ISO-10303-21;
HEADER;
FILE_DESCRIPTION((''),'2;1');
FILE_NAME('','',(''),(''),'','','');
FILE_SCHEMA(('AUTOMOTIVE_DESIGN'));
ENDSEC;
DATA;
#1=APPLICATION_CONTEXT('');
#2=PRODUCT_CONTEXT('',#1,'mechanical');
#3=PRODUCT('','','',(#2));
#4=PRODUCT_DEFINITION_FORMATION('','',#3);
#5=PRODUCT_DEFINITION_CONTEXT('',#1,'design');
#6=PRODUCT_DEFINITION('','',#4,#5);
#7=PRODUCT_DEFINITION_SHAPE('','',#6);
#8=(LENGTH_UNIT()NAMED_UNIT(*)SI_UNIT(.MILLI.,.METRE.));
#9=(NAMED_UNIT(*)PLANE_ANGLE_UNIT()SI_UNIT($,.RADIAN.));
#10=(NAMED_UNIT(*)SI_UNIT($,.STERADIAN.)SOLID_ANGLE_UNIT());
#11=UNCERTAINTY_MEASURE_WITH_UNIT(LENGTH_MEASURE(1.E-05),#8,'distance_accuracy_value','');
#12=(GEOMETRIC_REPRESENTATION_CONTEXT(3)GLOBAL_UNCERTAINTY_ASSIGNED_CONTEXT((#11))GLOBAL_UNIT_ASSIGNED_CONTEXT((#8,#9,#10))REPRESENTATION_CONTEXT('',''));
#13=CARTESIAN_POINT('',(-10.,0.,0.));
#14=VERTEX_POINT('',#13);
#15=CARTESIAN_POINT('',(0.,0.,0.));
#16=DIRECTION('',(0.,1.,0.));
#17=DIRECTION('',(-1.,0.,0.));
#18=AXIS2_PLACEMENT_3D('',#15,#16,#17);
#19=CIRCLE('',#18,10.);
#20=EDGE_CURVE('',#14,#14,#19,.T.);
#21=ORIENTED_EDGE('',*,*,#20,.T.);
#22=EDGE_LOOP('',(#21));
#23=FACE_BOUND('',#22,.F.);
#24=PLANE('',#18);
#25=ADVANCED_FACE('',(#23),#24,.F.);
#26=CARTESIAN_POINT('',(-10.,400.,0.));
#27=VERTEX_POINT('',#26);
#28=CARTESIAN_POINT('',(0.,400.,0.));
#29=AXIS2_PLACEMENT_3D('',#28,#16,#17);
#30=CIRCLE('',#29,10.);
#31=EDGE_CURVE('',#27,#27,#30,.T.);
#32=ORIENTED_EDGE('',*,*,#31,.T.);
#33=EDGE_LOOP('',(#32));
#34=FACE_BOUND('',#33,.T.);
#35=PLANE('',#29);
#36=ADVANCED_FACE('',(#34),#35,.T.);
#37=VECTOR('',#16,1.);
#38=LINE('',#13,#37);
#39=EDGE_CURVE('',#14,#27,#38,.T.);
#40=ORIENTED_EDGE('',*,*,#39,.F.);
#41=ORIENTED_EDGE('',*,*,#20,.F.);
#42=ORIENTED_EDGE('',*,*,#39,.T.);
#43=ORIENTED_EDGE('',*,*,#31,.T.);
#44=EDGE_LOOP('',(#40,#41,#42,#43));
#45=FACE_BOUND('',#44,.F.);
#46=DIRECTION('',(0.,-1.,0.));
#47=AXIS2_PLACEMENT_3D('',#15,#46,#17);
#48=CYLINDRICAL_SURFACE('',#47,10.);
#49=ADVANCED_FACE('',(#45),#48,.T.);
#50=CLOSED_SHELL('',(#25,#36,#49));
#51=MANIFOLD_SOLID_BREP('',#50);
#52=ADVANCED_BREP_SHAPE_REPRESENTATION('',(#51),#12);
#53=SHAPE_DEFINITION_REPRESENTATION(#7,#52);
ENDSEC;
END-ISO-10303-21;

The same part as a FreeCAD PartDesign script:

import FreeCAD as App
import Part
import Sketcher

V = App.Vector

doc = App.newDocument("Part")
body = doc.addObject("PartDesign::Body", "Body")

# Sketch on XZ plane
sketch1 = body.newObject("Sketcher::SketchObject", "Sketch")
sketch1.AttachmentSupport = (doc.getObject("XZ_Plane"), [""])
sketch1.MapMode = "FlatFace"
sketch1.addGeometry(Part.Circle(V(0, 0, 0), V(0, 0, 1), 10), False)
sketch1.addConstraint([
    Sketcher.Constraint("Coincident", 0, 3, -1, 1),
    Sketcher.Constraint("Diameter", 0, 20.0),
])
pad1 = body.newObject("PartDesign::Pad", "Pad")
pad1.Profile = sketch1
pad1.Length = 400
pad1.Reversed = True

doc.recompute()
